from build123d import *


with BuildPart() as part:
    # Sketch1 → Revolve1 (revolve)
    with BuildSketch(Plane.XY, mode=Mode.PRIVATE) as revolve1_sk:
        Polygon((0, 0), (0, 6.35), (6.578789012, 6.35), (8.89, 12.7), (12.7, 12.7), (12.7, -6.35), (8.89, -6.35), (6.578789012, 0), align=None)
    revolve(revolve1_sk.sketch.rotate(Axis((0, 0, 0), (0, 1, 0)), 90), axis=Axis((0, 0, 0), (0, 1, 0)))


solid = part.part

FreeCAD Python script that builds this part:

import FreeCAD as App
import Part
import Sketcher
from FreeCAD import Vector
Q = App.Units.Quantity


def add_polygon(sketch, points):
    """Adds a closed chain of lines whose ends are joined by coincident constraints."""
    first, n = sketch.GeometryCount, len(points)
    for a, b in zip(points, points[1:] + points[:1]):
        sketch.addGeometry(Part.LineSegment(App.Vector(*a, 0), App.Vector(*b, 0)), False)
    for i in range(n):
        sketch.addConstraint(Sketcher.Constraint("Coincident", first + i, 2, first + (i + 1) % n, 1))

doc = App.newDocument("Part")
body = doc.addObject("PartDesign::Body", "Body")

sketch1 = body.newObject("Sketcher::SketchObject", "Sketch")
sketch1.AttachmentSupport = (doc.getObject("XY_Plane"), [""])
sketch1.MapMode = "FlatFace"
add_polygon(sketch1, [(0, 6.3), (0, 0), (6.6, 0), (8.9, -6.3), (12.7, -6.3), (12.7, 12.7), (8.9, 12.7), (6.6, 6.3)])
sketch1.addConstraint([
    Sketcher.Constraint("Vertical", 0),
    Sketcher.Constraint("Horizontal", 1),
    Sketcher.Constraint("Horizontal", 3),
    Sketcher.Constraint("Vertical", 4),
    Sketcher.Constraint("Horizontal", 5),
    Sketcher.Constraint("Horizontal", 7),
    Sketcher.Constraint("Coincident", 0, 2, -1, 1),
    Sketcher.Constraint("Vertical", 2, 2, 5, 2),
    Sketcher.Constraint("Vertical", 1, 2, 6, 2),
    Sketcher.Constraint("Equal", 2, 6),
    Sketcher.Constraint("Angle", 2, Q("-70 deg")),
    Sketcher.Constraint("DistanceX", 3, 1, 3, 2, Q("0.15 in")),
    Sketcher.Constraint("DistanceY", 0, 2, 0, 1, Q("0.25 in")),
    Sketcher.Constraint("DistanceY", 4, 1, 4, 2, Q("0.75 in")),
    Sketcher.Constraint("DistanceX", -1, 1, 3, 2, Q("0.5 in")),
])
revolution = body.newObject("PartDesign::Revolution", "Revolution")
revolution.Profile = sketch1
revolution.ReferenceAxis = (sketch1, ["V_Axis"])
revolution.Angle = 360

doc.recompute()
